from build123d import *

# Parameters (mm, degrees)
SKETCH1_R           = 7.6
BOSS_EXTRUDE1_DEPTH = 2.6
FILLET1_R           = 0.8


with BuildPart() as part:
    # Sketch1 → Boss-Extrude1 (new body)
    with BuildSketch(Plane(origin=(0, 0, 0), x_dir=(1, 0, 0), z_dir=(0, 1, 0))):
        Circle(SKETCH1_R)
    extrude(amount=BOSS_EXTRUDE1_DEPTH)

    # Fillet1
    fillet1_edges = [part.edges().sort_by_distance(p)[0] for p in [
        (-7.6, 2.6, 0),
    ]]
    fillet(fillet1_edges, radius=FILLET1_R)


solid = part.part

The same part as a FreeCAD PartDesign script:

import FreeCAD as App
import Part
import Sketcher
from FreeCAD import Vector
Q = App.Units.Quantity


def edges_at(feature, points):
    """Names of the edges that pass closest to the given points."""
    edges = feature.Shape.Edges
    near = lambda p: min(range(len(edges)), key=lambda i: edges[i].distToShape(Part.Vertex(*p))[0])
    return sorted({f"Edge{near(p) + 1}" for p in points})

doc = App.newDocument("Part")
body = doc.addObject("PartDesign::Body", "Body")

sketch1 = body.newObject("Sketcher::SketchObject", "Sketch")
sketch1.AttachmentSupport = (doc.getObject("XZ_Plane"), [""])
sketch1.MapMode = "FlatFace"
sketch1.addGeometry(Part.Circle(Vector(0, 0, 0), Vector(0, 0, 1), 7.6), False)
sketch1.addConstraint([
    Sketcher.Constraint("Coincident", 0, 3, -1, 1),
    Sketcher.Constraint("Diameter", 0, Q("15.2 mm")),
])
pad1 = body.newObject("PartDesign::Pad", "Pad")
pad1.Profile = sketch1
pad1.Length = 2.6
pad1.Reversed = True
doc.recompute()

fillet = body.newObject("PartDesign::Fillet", "Fillet")
fillet.Base = (pad1, edges_at(pad1, [(-7.6, 2.6, 0)]))
fillet.Radius = 0.8

doc.recompute()
